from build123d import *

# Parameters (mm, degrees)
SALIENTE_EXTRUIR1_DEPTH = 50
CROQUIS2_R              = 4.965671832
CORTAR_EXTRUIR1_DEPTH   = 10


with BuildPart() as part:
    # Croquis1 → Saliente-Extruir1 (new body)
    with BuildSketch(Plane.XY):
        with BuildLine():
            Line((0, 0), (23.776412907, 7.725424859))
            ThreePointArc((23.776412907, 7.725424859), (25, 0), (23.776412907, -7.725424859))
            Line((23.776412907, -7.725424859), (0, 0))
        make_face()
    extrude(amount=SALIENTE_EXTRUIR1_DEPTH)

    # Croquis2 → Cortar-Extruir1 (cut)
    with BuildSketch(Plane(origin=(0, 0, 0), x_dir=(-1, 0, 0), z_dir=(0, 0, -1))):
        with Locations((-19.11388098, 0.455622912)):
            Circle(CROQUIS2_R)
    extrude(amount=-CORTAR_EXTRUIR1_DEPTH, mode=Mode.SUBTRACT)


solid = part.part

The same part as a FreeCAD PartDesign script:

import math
import FreeCAD as App
import Part
import Sketcher
Q = App.Units.Quantity

doc = App.newDocument("Part")
params = doc.addObject("Spreadsheet::Sheet", "Params")
for row, (alias, value) in enumerate([
    ("sketch1_radius", "25 mm"),
    ("pad1_length", "50 mm"),
    ("pocket1_length", "10 mm"),
], start=1):
    params.set(f"A{row}", alias)
    params.set(f"B{row}", "=" + value)
    params.setAlias(f"B{row}", alias)

body = doc.addObject("PartDesign::Body", "Body")

# Sketch on XY plane
sketch1 = body.newObject("Sketcher::SketchObject", "Sketch")
sketch1.AttachmentSupport = (doc.getObject("XY_Plane"), [""])
sketch1.MapMode = "FlatFace"
sketch1.addGeometry([
    Part.LineSegment(App.Vector(24, 8, 0), App.Vector(0, 0, 0)),
    Part.LineSegment(App.Vector(0, 0, 0), App.Vector(24, -8, 0)),
    Part.ArcOfCircle(Part.Circle(App.Vector(0, 0, 0), App.Vector(0, 0, 1), 25), math.radians(-18), math.radians(18)),
], False)
sketch1.addConstraint([
    Sketcher.Constraint("Coincident", 0, 2, 1, 1),
    Sketcher.Constraint("Coincident", 1, 2, 2, 1),
    Sketcher.Constraint("Coincident", 2, 2, 0, 1),
    Sketcher.Constraint("Coincident", 2, 3, -1, 1),
    Sketcher.Constraint("Coincident", 0, 2, -1, 1),
    Sketcher.Constraint("Vertical", 1, 2, 2, 2),
    Sketcher.Constraint("Radius", 2, 25.0),
    Sketcher.Constraint("Angle", 0, Q("-162 deg")),
])
sketch1.setExpression("Constraints[6]", "Params.sketch1_radius")
pad1 = body.newObject("PartDesign::Pad", "Pad")
pad1.Profile = sketch1
pad1.setExpression("Length", "Params.pad1_length")

# Sketch on XY plane
sketch2 = body.newObject("Sketcher::SketchObject", "Sketch001")
sketch2.AttachmentSupport = (doc.getObject("XY_Plane"), [""])
sketch2.MapMode = "FlatFace"
sketch2.addGeometry(Part.Circle(App.Vector(19.1, 0.5, 0), App.Vector(0, 0, 1), 5), False)
sketch2.addConstraint([
    Sketcher.Constraint("Diameter", 0, 9.931344),
    Sketcher.Constraint("DistanceX", -1, 1, 0, 3, 19.113881),
    Sketcher.Constraint("DistanceY", -1, 1, 0, 3, 0.455623),
])
pocket1 = body.newObject("PartDesign::Pocket", "Pocket")
pocket1.Profile = sketch2
pocket1.setExpression("Length", "Params.pocket1_length")
pocket1.Reversed = True

doc.recompute()
